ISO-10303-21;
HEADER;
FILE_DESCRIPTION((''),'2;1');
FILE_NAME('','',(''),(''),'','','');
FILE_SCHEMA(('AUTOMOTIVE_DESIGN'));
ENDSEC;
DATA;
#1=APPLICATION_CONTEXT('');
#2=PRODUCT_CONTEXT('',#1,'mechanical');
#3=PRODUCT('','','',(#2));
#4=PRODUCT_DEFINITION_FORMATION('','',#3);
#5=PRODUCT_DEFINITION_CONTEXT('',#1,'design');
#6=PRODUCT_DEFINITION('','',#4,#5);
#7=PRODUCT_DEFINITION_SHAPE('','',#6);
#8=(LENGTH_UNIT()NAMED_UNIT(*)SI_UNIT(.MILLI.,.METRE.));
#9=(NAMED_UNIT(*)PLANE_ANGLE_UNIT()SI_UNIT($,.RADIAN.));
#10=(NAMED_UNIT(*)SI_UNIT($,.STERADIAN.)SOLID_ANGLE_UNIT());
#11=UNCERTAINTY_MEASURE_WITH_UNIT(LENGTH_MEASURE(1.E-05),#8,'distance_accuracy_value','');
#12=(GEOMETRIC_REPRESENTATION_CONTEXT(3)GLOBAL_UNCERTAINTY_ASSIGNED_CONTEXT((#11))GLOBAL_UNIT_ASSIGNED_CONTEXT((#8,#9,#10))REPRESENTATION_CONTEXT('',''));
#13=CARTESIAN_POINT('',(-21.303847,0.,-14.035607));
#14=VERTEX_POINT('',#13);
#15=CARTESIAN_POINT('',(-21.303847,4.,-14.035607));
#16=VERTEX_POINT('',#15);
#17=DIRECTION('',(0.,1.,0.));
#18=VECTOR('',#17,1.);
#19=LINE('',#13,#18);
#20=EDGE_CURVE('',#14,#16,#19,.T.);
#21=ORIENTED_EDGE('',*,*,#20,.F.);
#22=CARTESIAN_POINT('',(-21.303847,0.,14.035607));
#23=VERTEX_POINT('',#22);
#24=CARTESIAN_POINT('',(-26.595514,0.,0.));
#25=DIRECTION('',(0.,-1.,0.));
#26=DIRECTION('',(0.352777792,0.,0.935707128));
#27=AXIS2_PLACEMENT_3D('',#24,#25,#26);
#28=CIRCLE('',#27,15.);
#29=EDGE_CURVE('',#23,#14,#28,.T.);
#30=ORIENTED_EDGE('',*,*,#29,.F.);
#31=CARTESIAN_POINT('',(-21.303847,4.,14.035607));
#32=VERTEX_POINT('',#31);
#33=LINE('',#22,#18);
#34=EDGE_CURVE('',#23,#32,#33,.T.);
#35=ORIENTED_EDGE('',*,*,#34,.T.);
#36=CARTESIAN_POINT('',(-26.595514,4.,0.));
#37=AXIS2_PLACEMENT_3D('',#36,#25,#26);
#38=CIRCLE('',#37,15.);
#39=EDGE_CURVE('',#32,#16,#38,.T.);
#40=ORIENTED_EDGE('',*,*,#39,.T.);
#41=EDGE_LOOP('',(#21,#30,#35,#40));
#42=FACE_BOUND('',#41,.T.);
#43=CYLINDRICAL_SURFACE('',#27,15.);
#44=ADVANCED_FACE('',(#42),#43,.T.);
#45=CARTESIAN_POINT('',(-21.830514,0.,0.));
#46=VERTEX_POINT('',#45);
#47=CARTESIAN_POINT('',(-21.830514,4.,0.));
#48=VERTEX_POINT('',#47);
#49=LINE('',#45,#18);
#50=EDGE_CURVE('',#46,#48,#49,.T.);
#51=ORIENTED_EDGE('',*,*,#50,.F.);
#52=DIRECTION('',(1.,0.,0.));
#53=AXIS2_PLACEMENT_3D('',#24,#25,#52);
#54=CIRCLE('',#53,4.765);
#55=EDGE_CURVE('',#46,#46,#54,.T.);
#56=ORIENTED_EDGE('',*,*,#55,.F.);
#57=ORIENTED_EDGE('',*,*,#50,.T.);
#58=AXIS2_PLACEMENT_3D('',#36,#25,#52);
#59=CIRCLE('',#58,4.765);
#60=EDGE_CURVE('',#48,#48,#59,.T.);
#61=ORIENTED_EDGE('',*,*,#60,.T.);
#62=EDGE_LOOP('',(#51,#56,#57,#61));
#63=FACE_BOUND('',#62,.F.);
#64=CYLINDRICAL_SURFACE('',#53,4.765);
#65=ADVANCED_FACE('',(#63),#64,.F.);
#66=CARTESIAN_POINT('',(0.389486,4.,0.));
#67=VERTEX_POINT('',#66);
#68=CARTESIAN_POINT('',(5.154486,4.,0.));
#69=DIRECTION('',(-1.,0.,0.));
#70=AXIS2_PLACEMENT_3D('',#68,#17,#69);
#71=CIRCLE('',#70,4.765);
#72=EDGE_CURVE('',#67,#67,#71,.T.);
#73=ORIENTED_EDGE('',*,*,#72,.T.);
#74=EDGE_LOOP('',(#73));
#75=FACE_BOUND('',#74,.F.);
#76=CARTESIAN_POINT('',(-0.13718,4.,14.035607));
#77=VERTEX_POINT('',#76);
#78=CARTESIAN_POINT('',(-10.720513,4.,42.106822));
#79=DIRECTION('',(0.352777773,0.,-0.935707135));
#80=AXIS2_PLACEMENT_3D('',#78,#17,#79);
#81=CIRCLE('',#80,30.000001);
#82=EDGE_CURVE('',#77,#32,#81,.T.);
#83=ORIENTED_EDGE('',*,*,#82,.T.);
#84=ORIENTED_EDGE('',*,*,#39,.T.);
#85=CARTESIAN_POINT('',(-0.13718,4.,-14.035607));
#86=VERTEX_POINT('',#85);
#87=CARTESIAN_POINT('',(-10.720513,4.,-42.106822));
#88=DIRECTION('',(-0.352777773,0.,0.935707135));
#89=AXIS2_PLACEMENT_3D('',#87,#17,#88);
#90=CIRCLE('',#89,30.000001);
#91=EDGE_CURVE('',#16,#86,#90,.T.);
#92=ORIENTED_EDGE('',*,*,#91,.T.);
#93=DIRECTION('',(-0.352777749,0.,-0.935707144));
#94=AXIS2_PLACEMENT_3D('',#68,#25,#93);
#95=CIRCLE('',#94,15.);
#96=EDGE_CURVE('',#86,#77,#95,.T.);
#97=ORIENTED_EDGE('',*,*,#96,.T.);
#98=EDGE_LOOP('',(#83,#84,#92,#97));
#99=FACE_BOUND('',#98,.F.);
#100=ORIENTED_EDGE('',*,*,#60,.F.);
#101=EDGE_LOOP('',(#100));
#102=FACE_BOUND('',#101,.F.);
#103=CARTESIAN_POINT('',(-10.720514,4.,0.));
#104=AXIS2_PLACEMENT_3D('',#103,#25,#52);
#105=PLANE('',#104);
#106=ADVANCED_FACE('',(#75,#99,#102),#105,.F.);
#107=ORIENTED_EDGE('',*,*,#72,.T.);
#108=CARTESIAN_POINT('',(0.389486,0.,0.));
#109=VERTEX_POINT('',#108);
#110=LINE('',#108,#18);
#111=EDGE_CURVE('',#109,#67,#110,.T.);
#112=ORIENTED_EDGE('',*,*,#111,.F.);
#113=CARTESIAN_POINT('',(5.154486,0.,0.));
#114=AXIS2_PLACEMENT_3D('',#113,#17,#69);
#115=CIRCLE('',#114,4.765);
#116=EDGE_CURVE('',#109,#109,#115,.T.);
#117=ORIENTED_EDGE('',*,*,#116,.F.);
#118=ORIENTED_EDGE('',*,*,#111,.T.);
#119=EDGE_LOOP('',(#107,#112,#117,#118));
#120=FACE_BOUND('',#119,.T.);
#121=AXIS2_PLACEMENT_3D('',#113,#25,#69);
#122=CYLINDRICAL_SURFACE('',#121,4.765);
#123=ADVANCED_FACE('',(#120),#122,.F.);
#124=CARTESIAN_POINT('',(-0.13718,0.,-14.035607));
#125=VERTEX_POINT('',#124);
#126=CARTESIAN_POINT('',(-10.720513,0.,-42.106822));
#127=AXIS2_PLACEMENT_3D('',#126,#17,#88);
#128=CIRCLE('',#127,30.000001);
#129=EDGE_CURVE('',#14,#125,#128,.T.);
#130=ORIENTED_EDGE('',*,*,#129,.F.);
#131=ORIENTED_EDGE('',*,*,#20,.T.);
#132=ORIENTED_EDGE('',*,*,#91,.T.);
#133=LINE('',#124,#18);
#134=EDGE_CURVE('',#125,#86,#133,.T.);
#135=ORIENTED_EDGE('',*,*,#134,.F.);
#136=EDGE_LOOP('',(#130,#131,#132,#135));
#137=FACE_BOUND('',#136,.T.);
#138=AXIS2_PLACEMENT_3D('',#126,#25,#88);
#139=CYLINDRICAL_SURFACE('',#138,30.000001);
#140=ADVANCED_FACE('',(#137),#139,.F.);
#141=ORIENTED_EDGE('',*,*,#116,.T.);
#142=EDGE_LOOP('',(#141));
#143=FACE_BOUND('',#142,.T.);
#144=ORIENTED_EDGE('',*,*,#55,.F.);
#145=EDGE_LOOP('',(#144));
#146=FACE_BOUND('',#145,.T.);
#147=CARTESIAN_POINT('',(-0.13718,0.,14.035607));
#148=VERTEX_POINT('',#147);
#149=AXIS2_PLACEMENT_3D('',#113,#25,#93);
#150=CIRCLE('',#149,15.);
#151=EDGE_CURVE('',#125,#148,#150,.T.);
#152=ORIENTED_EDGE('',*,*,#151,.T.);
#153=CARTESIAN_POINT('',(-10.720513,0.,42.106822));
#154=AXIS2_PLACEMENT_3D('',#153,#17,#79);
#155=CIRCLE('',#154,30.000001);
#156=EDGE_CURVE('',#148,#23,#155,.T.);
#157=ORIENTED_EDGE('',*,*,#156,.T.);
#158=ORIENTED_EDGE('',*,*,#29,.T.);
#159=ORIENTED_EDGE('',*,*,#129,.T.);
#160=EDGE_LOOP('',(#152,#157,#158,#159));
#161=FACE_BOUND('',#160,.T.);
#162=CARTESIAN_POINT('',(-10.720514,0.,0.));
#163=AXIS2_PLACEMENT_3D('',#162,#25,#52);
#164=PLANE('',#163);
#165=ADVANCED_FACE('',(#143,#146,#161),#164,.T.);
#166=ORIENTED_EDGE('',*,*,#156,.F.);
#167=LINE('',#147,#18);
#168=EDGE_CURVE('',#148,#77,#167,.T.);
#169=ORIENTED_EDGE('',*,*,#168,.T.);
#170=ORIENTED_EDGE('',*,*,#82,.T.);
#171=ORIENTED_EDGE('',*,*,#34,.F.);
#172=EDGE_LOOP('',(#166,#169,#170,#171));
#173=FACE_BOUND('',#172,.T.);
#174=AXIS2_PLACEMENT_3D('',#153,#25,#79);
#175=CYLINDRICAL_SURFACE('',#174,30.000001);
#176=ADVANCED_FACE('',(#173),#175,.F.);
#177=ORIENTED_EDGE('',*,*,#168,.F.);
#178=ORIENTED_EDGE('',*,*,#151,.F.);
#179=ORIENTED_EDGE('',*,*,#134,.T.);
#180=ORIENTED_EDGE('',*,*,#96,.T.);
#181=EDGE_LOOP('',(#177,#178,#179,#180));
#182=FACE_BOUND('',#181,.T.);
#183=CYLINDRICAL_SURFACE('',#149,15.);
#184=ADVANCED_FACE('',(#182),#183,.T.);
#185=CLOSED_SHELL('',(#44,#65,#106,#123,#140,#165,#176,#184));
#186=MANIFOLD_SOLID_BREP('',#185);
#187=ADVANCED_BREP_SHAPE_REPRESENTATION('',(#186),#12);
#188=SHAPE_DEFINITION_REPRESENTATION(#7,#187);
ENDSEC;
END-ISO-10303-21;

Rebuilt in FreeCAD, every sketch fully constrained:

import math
import FreeCAD as App
import Part
import Sketcher

doc = App.newDocument("Part")
body = doc.addObject("PartDesign::Body", "Body")

# Sketch on XZ plane
sketch1 = body.newObject("Sketcher::SketchObject", "Sketch")
sketch1.AttachmentSupport = (doc.getObject("XZ_Plane"), [""])
sketch1.MapMode = "FlatFace"
sketch1.addGeometry([
    Part.ArcOfCircle(Part.Circle(App.Vector(-10.720513, 42.106822, 0), App.Vector(0, 0, 1), 30.000001), math.radians(-110.657311), math.radians(-69.342689)),  # 0
    Part.ArcOfCircle(Part.Circle(App.Vector(-26.595514, 0, 0), App.Vector(0, 0, 1), 15), math.radians(69.342688), math.radians(290.657312)),  # 1
    Part.ArcOfCircle(Part.Circle(App.Vector(-10.720513, -42.106822, 0), App.Vector(0, 0, 1), 30.000001), math.radians(69.342689), math.radians(110.657311)),  # 2
    Part.ArcOfCircle(Part.Circle(App.Vector(5.154486, 0, 0), App.Vector(0, 0, 1), 15), math.radians(-110.657309), math.radians(110.657309)),  # 3
    Part.Circle(App.Vector(-26.595514, 0, 0), App.Vector(0, 0, 1), 4.765),  # 4
    Part.Circle(App.Vector(5.154486, 0, 0), App.Vector(0, 0, 1), 4.765),  # 5
], False)
sketch1.addConstraint([
    Sketcher.Constraint("Tangent", 0, 1, 1, 1),
    Sketcher.Constraint("Tangent", 1, 2, 2, 2),
    Sketcher.Constraint("Tangent", 2, 1, 3, 1),
    Sketcher.Constraint("Tangent", 3, 2, 0, 2),
    Sketcher.Constraint("Coincident", 4, 3, 1, 3),
    Sketcher.Constraint("Coincident", 5, 3, 3, 3),
    Sketcher.Constraint("Equal", 0, 2),
    Sketcher.Constraint("Equal", 1, 3),
    Sketcher.Constraint("Equal", 4, 5),
    Sketcher.Constraint("Symmetric", 0, 3, 2, 3, -1),
    Sketcher.Constraint("Radius", 0, 30.000001),
    Sketcher.Constraint("Radius", 1, 15.0),
    Sketcher.Constraint("Diameter", 4, 9.53),
    Sketcher.Constraint("DistanceX", 1, 3, 3, 3, 31.75),
    Sketcher.Constraint("DistanceX", 2, 1, -1, 1, 0.13718),
])
pad1 = body.newObject("PartDesign::Pad", "Pad")
pad1.Profile = sketch1
pad1.Length = 4
pad1.Reversed = True

doc.recompute()
